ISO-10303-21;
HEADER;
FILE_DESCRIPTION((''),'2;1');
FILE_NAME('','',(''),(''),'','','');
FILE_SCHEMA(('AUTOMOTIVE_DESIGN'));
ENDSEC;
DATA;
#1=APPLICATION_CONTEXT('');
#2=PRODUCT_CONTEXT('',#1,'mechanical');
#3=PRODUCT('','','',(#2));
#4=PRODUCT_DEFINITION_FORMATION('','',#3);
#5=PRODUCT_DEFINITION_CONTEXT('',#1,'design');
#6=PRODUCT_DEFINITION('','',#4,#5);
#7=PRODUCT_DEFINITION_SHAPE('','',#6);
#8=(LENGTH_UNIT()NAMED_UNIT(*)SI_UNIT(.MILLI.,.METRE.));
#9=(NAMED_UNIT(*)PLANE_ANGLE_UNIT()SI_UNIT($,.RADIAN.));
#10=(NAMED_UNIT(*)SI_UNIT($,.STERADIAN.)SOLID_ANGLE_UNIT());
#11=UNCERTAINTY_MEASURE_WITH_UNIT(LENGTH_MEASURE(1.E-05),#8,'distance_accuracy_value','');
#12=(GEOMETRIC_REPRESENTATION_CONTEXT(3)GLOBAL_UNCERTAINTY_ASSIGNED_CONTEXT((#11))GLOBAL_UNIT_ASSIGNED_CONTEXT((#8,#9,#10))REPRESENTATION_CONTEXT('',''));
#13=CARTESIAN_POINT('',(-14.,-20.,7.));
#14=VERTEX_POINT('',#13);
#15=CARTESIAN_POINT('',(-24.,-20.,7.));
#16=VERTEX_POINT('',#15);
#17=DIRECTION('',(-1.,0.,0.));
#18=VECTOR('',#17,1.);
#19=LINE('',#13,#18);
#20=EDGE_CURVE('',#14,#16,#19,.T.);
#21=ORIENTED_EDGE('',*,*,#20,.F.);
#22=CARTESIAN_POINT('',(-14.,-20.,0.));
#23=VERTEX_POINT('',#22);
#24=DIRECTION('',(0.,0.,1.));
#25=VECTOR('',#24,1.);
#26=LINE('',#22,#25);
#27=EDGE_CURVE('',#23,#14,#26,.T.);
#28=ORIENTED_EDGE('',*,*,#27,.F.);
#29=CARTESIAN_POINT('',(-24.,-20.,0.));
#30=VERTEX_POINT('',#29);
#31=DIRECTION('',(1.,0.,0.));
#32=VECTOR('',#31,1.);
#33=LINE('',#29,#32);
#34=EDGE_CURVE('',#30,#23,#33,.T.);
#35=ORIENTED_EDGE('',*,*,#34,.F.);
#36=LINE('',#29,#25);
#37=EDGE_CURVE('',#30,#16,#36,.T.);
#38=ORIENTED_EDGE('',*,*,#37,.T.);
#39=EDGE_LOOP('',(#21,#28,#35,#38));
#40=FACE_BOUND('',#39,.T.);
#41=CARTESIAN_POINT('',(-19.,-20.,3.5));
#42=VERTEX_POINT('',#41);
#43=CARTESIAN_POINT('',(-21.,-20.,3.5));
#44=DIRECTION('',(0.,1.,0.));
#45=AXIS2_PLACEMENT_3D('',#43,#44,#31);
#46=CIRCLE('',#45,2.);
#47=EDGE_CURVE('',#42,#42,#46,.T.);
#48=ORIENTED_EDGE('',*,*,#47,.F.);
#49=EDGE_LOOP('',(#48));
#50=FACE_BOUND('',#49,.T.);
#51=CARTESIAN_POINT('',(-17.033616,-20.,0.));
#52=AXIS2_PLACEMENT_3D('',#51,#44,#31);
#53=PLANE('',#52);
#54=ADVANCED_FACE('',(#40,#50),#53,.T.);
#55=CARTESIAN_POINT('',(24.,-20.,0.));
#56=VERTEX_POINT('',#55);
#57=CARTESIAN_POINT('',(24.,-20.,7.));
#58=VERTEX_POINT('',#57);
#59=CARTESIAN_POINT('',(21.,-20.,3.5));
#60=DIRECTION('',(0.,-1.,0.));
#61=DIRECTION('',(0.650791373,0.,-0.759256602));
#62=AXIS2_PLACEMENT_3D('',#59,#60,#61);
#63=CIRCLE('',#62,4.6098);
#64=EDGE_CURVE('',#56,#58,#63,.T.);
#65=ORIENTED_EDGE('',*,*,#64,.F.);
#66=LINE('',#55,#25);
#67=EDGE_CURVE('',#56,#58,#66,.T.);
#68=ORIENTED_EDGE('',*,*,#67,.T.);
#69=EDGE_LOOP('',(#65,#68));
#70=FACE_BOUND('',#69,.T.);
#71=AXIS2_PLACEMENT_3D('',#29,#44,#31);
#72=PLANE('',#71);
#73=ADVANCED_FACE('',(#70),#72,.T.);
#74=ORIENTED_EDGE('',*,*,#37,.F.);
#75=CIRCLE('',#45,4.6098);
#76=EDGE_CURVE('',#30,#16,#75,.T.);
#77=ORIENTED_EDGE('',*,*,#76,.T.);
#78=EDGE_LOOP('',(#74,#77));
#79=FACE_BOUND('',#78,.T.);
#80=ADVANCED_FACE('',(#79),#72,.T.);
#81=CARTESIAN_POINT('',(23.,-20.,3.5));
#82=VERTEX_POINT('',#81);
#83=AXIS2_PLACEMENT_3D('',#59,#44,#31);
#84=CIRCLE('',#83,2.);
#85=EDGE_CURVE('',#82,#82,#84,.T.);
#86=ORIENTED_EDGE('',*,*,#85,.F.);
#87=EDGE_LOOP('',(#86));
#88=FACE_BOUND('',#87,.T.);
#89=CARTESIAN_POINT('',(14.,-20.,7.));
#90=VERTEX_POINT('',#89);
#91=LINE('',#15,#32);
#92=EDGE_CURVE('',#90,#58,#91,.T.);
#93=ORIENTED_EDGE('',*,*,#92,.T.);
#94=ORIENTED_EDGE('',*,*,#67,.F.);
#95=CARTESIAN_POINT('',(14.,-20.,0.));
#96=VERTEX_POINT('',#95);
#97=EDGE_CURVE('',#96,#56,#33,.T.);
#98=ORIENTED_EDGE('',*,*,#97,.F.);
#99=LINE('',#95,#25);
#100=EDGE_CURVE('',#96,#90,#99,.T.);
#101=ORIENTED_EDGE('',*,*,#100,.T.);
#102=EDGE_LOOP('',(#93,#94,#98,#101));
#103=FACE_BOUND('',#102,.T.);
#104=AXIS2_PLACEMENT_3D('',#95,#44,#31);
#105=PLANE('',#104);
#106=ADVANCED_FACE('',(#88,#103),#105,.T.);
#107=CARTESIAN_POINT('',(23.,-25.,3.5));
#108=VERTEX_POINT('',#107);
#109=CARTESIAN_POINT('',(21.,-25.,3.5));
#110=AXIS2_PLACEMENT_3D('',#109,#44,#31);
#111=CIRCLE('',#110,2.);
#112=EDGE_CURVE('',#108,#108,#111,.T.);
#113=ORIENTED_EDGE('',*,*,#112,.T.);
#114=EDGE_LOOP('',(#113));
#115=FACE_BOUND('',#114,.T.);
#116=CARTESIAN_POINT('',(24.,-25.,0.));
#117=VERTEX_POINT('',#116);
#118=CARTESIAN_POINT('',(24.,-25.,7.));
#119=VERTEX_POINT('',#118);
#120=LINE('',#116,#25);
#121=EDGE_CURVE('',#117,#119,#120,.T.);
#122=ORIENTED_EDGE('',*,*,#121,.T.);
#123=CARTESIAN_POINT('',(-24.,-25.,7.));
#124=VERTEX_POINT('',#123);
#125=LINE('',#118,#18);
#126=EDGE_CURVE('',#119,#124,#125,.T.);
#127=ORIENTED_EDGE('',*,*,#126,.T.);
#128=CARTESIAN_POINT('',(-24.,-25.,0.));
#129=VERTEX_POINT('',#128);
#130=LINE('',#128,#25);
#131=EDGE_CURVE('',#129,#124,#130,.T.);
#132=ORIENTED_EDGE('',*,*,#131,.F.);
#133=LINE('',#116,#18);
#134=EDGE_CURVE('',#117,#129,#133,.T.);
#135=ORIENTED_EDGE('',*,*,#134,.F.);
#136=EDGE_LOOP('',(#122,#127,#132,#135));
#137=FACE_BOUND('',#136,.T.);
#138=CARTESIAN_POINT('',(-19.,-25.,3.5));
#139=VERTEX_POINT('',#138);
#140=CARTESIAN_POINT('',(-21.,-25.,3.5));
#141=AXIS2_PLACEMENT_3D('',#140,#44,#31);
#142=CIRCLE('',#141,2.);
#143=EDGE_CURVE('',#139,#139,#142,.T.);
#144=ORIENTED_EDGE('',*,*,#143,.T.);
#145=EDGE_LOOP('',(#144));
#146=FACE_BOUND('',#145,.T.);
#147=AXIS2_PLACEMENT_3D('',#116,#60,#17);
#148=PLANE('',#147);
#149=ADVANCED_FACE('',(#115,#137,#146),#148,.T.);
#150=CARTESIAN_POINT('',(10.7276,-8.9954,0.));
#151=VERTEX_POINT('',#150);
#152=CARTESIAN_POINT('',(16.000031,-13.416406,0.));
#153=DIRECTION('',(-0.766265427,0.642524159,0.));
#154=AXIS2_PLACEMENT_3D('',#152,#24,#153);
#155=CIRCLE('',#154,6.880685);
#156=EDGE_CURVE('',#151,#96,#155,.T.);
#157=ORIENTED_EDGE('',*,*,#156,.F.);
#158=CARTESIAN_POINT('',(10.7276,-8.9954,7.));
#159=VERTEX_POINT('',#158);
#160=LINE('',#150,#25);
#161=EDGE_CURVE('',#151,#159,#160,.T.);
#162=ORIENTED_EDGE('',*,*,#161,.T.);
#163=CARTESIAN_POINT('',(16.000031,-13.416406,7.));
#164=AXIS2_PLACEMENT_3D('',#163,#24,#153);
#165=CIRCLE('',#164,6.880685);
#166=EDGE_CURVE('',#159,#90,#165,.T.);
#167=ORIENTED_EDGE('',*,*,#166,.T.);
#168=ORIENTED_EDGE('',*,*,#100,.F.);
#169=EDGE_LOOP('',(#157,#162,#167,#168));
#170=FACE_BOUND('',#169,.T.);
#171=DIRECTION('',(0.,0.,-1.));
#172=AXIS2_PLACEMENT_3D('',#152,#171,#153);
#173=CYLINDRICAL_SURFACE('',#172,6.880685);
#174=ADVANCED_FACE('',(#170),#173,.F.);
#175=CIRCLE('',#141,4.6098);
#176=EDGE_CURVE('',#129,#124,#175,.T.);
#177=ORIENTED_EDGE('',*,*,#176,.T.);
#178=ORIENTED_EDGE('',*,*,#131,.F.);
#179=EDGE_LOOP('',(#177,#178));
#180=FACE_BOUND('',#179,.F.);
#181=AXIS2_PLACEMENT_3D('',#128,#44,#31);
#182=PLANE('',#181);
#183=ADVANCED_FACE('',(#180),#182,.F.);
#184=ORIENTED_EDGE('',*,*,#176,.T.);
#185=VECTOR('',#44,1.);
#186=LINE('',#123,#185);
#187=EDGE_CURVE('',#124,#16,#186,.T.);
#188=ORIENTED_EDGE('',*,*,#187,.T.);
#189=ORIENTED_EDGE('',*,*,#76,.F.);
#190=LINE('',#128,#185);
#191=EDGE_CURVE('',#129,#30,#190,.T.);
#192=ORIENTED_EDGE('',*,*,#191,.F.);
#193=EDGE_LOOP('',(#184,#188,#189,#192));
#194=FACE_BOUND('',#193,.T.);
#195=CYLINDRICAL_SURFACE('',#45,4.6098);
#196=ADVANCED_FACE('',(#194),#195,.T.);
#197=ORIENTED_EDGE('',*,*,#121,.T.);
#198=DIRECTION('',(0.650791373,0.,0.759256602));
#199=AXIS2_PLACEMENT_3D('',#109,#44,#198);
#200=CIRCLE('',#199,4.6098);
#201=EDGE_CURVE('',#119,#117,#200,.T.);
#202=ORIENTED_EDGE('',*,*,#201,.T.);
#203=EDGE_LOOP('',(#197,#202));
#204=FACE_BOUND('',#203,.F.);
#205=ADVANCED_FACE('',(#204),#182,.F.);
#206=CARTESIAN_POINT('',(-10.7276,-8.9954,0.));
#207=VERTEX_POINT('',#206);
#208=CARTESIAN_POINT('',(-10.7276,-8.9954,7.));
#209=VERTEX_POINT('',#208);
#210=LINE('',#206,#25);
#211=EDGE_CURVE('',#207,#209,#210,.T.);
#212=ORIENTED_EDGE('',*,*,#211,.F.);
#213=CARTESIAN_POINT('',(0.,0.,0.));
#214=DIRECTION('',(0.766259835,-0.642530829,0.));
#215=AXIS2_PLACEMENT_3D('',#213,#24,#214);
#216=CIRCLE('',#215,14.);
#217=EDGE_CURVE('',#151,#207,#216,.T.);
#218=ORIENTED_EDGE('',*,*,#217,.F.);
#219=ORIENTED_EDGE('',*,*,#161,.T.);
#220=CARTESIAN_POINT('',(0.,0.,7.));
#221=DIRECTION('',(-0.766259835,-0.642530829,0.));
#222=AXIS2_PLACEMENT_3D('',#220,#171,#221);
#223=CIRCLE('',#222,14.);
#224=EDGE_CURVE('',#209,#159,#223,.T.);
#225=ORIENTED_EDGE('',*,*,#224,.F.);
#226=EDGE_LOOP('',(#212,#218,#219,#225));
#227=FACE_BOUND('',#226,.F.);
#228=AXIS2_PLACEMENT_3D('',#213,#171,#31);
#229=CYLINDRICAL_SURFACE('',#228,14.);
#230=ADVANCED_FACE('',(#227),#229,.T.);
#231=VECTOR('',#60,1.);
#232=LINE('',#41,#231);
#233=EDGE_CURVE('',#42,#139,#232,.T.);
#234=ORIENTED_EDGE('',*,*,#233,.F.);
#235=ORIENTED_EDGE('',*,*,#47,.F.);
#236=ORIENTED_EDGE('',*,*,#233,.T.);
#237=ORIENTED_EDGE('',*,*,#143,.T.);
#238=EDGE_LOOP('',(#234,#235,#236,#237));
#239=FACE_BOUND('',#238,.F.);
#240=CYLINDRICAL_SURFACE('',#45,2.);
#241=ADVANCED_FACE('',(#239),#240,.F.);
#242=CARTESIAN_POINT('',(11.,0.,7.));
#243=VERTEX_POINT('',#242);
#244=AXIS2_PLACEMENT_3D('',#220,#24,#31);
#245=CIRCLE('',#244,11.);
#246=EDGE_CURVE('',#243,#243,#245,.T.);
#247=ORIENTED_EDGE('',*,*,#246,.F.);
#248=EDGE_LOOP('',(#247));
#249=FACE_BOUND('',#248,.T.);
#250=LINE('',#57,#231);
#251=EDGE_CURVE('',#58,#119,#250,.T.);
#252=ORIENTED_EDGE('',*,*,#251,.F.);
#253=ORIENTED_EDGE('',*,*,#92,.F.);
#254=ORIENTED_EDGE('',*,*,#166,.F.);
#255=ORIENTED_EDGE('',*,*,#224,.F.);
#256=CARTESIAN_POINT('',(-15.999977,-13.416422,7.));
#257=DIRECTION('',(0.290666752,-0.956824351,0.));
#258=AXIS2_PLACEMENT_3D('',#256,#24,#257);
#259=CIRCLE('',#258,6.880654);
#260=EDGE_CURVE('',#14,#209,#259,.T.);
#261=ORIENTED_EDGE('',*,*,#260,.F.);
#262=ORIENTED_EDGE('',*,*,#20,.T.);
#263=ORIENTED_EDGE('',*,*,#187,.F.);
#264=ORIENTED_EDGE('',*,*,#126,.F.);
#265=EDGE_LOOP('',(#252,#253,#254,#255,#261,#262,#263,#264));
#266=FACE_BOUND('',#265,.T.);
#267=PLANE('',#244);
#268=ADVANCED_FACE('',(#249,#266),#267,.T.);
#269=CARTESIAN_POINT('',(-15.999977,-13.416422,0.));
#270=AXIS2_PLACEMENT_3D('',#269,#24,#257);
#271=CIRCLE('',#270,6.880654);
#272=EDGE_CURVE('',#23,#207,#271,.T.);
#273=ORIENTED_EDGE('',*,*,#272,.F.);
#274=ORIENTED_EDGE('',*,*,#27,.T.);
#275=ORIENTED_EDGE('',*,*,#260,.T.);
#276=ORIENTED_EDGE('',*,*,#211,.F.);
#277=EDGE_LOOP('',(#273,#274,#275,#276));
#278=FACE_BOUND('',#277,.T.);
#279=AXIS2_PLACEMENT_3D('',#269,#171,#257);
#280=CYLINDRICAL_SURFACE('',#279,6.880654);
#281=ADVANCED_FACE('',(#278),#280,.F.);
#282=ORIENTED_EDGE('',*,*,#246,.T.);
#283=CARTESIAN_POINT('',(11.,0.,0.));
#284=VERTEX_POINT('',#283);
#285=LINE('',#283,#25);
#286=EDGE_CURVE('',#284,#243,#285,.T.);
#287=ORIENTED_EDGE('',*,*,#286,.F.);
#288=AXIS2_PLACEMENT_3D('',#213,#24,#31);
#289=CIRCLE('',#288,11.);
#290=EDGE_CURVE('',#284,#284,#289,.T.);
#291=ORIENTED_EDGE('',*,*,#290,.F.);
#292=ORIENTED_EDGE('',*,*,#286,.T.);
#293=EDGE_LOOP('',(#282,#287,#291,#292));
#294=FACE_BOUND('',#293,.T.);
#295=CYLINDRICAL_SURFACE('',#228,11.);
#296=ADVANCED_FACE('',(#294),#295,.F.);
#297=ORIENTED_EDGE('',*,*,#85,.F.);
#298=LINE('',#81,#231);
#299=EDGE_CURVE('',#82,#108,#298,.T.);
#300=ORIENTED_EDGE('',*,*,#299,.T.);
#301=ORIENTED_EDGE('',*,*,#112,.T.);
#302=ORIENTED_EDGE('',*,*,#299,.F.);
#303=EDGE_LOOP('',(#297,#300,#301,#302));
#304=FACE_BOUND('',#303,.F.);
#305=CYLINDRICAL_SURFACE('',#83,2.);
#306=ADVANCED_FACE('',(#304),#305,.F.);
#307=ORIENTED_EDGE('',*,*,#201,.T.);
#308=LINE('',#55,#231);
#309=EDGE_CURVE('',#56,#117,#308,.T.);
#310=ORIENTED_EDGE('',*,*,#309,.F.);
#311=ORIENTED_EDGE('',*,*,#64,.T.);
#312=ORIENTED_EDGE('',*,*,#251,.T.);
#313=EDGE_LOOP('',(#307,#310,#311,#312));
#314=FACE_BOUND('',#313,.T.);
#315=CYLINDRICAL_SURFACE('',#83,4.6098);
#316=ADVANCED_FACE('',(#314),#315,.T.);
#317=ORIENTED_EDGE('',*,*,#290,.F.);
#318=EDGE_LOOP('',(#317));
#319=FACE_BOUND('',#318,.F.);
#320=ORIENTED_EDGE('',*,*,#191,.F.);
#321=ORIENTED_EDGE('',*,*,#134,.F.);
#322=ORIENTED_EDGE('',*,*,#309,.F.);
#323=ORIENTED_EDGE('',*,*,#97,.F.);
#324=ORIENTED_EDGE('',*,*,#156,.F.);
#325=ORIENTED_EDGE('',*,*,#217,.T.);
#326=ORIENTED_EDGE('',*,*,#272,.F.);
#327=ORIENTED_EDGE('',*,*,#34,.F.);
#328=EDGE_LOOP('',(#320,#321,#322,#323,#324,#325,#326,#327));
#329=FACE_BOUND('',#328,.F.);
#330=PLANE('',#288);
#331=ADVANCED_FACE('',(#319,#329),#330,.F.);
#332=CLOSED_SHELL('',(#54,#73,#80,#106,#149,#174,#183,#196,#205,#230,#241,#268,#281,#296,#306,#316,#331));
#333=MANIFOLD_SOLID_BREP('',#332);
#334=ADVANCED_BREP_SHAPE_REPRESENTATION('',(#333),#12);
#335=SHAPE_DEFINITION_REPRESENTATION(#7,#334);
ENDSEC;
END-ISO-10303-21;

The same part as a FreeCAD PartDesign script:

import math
import FreeCAD as App
import Part
import Sketcher
from FreeCAD import Vector

doc = App.newDocument("Part")
body = doc.addObject("PartDesign::Body", "Body")

sketch1 = body.newObject("Sketcher::SketchObject", "Sketch")
sketch1.AttachmentSupport = (doc.getObject("XY_Plane"), [""])
sketch1.MapMode = "FlatFace"
sketch1.addGeometry([
    Part.ArcOfCircle(Part.Circle(Vector(0, 0, 0), Vector(0, 0, 1), 14), math.radians(-40), math.radians(220)),
    Part.ArcOfCircle(Part.Circle(Vector(-16, -13, 0), Vector(0, 0, 1), 7), math.radians(-73), math.radians(40)),
    Part.LineSegment(Vector(-14, -20, 0), Vector(-24, -20, 0)),
    Part.LineSegment(Vector(-24, -20, 0), Vector(-24, -25, 0)),
    Part.LineSegment(Vector(-24, -25, 0), Vector(24, -25, 0)),
    Part.LineSegment(Vector(24, -25, 0), Vector(24, -20, 0)),
    Part.LineSegment(Vector(24, -20, 0), Vector(14, -20, 0)),
    Part.ArcOfCircle(Part.Circle(Vector(16, -13, 0), Vector(0, 0, 1), 7), math.radians(140), math.radians(253)),
    Part.Circle(Vector(0, 0, 0), Vector(0, 0, 1), 11),
], False)
sketch1.addConstraint([
    Sketcher.Constraint("Tangent", 0, 2, 1, 2),
    Sketcher.Constraint("Coincident", 1, 1, 2, 1),
    Sketcher.Constraint("Coincident", 2, 2, 3, 1),
    Sketcher.Constraint("Coincident", 3, 2, 4, 1),
    Sketcher.Constraint("Coincident", 4, 2, 5, 1),
    Sketcher.Constraint("Coincident", 5, 2, 6, 1),
    Sketcher.Constraint("Coincident", 6, 2, 7, 2),
    Sketcher.Constraint("Tangent", 7, 1, 0, 1),
    Sketcher.Constraint("Horizontal", 2),
    Sketcher.Constraint("Vertical", 3),
    Sketcher.Constraint("Horizontal", 4),
    Sketcher.Constraint("Vertical", 5),
    Sketcher.Constraint("Horizontal", 6),
    Sketcher.Constraint("Coincident", 0, 3, -1, 1),
    Sketcher.Constraint("Coincident", 8, 3, -1, 1),
    Sketcher.Constraint("Equal", 1, 7),
    Sketcher.Constraint("Symmetric", 2, 2, 5, 2, -2),
    Sketcher.Constraint("Horizontal", 1, 3, 7, 3),
    Sketcher.Constraint("Diameter", 8, 22.0),
    Sketcher.Constraint("DistanceX", 2, 2, 2, 1, 10.0),
    Sketcher.Constraint("DistanceY", 3, 2, 3, 1, 5.0),
    Sketcher.Constraint("DistanceY", 3, 2, -1, 1, 25.0),
    Sketcher.Constraint("Radius", 0, 14.0),
    Sketcher.Constraint("DistanceX", 1, 3, 1, 1, 2.0),
    Sketcher.Constraint("DistanceX", 4, 1, 4, 2, 48.0),
])
pad1 = body.newObject("PartDesign::Pad", "Pad")
pad1.Profile = sketch1
pad1.Length = 7

sketch2 = body.newObject("Sketcher::SketchObject", "Sketch001")
sketch2.AttachmentSupport = (doc.getObject("XZ_Plane"), [""])
sketch2.MapMode = "FlatFace"
sketch2.AttachmentOffset = App.Placement(Vector(0, 0, 20), App.Rotation())
sketch2.addGeometry([
    Part.Circle(Vector(-21, 3.5, 0), Vector(0, 0, 1), 2),
    Part.Circle(Vector(21, 3.5, 0), Vector(0, 0, 1), 2),
], False)
sketch2.addConstraint([
    Sketcher.Constraint("Equal", 0, 1),
    Sketcher.Constraint("Symmetric", 0, 3, 1, 3, -2),
    Sketcher.Constraint("Diameter", 0, 4.0),
    Sketcher.Constraint("DistanceY", -1, 1, 0, 3, 3.5),
    Sketcher.Constraint("DistanceX", 0, 3, -1, 1, 21.0),
])
pocket1 = body.newObject("PartDesign::Pocket", "Pocket")
pocket1.Profile = sketch2
pocket1.Length = 5
pocket1.Reversed = True

sketch3 = body.newObject("Sketcher::SketchObject", "Sketch002")
sketch3.AttachmentSupport = (doc.getObject("XZ_Plane"), [""])
sketch3.MapMode = "FlatFace"
sketch3.AttachmentOffset = App.Placement(Vector(0, 0, 20), App.Rotation())
sketch3.addGeometry([
    Part.LineSegment(Vector(-24, 7, 0), Vector(-24, 0, 0)),
    Part.ArcOfCircle(Part.Circle(Vector(-21, 3.5, 0), Vector(0, 0, 1), 4.6), math.radians(131), math.radians(229)),
    Part.ArcOfCircle(Part.Circle(Vector(21, 3.5, 0), Vector(0, 0, 1), 4.6), math.radians(-49), math.radians(49)),
    Part.LineSegment(Vector(24, 7, 0), Vector(24, 0, 0)),
], False)
sketch3.addConstraint([
    Sketcher.Constraint("Coincident", 0, 1, 1, 1),
    Sketcher.Constraint("Coincident", 1, 2, 0, 2),
    Sketcher.Constraint("Coincident", 2, 1, 3, 2),
    Sketcher.Constraint("Coincident", 3, 1, 2, 2),
    Sketcher.Constraint("Vertical", 0),
    Sketcher.Constraint("Vertical", 3),
    Sketcher.Constraint("Equal", 1, 2),
    Sketcher.Constraint("Symmetric", 1, 2, 2, 1, -1, 1),
    Sketcher.Constraint("Symmetric", 1, 3, 2, 3, -2),
    Sketcher.Constraint("DistanceX", 0, 1, 1, 3, 3.0),
    Sketcher.Constraint("DistanceY", -1, 1, 1, 3, 3.5),
    Sketcher.Constraint("DistanceX", 1, 3, -1, 1, 21.0),
])
pad2 = body.newObject("PartDesign::Pad", "Pad001")
pad2.Profile = sketch3
pad2.Length = 5

doc.recompute()
